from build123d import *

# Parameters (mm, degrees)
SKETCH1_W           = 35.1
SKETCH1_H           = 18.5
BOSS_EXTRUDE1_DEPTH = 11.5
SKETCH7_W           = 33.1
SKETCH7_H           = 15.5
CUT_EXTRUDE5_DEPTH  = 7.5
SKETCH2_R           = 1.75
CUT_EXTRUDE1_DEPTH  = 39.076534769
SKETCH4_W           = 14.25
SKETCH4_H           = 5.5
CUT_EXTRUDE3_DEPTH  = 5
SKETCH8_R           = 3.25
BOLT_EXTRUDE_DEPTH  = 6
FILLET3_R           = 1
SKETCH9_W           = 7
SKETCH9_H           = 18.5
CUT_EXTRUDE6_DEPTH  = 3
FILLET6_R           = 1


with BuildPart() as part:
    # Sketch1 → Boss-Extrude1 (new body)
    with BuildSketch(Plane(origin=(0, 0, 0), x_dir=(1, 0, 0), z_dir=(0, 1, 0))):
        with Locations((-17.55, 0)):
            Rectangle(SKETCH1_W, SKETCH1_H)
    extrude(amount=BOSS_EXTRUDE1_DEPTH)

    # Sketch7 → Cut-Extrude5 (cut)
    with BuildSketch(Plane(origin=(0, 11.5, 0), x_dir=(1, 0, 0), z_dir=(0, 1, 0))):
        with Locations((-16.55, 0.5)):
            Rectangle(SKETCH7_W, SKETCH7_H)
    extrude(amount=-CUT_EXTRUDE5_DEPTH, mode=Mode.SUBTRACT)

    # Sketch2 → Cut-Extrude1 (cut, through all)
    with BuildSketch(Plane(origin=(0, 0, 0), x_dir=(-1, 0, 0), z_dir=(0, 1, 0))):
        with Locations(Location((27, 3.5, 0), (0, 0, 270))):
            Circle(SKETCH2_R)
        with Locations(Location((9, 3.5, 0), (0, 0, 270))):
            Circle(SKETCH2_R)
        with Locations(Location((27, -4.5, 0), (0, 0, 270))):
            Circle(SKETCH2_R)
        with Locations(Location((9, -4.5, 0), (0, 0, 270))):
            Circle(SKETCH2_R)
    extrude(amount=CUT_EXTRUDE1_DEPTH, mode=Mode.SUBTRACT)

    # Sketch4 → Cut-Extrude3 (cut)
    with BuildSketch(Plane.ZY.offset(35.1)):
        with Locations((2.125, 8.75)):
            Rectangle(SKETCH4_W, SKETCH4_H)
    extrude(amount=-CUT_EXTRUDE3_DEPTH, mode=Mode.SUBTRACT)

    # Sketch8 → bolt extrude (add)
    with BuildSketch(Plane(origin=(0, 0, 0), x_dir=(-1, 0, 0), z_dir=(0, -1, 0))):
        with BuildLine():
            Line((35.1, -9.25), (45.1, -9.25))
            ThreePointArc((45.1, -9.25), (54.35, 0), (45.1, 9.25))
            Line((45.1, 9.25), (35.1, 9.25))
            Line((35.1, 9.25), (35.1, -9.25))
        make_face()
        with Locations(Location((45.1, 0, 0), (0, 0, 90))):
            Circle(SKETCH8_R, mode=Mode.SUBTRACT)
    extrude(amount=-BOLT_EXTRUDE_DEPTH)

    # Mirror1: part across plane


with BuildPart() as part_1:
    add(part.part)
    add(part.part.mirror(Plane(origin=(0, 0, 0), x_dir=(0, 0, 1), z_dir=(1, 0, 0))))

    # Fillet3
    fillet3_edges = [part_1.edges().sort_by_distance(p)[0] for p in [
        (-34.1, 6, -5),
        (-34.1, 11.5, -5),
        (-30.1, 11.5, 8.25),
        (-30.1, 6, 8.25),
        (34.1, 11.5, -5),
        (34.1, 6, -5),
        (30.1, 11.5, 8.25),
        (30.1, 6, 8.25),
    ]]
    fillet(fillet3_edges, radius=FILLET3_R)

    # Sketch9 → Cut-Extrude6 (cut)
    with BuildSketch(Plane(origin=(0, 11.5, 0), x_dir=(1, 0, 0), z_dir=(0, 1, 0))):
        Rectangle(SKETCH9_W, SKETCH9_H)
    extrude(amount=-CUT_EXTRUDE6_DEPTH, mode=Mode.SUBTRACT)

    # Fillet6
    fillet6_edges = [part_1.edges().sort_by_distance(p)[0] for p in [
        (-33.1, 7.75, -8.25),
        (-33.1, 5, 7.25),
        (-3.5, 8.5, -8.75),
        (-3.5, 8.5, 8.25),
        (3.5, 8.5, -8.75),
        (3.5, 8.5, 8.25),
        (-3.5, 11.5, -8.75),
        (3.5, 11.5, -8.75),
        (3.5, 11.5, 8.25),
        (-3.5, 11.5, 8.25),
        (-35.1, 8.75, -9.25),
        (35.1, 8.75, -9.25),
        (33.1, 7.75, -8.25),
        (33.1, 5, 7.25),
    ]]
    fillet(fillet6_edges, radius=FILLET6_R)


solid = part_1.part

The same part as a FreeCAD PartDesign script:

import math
import FreeCAD as App
import Part
import Sketcher


def edges_at(feature, points):
    """Names of the edges that pass closest to the given points."""
    edges = feature.Shape.Edges
    near = lambda p: min(range(len(edges)), key=lambda i: edges[i].distToShape(Part.Vertex(*p))[0])
    return sorted({f"Edge{near(p) + 1}" for p in points})


def add_polygon(sketch, points):
    """Adds a closed chain of lines whose ends are joined by coincident constraints."""
    first, n = sketch.GeometryCount, len(points)
    for a, b in zip(points, points[1:] + points[:1]):
        sketch.addGeometry(Part.LineSegment(App.Vector(*a, 0), App.Vector(*b, 0)), False)
    for i in range(n):
        sketch.addConstraint(Sketcher.Constraint("Coincident", first + i, 2, first + (i + 1) % n, 1))

doc = App.newDocument("Part")
body = doc.addObject("PartDesign::Body", "Body")

sketch1 = doc.addObject("Sketcher::SketchObject", "Sketch")
body.addObject(sketch1)
sketch1.AttachmentSupport = (doc.XZ_Plane, [""])
sketch1.MapMode = "FlatFace"
add_polygon(sketch1, [(-35, -9), (-35, 9), (0, 9), (0, -9)])
sketch1.addConstraint(Sketcher.Constraint("Vertical", 0))
sketch1.addConstraint(Sketcher.Constraint("Horizontal", 1))
sketch1.addConstraint(Sketcher.Constraint("Vertical", 2))
sketch1.addConstraint(Sketcher.Constraint("Horizontal", 3))
sketch1.addConstraint(Sketcher.Constraint("Symmetric", 1, 2, 2, 2, -1, 1))
sketch1.addConstraint(Sketcher.Constraint("DistanceX", 1, 1, 1, 2, 35.1))
sketch1.addConstraint(Sketcher.Constraint("DistanceY", 0, 1, 0, 2, 18.5))
pad1 = doc.addObject("PartDesign::Pad", "Pad")
body.addObject(pad1)
pad1.Profile = sketch1
pad1.Length = 11.5
pad1.Reversed = True

sketch2 = doc.addObject("Sketcher::SketchObject", "Sketch001")
body.addObject(sketch2)
sketch2.AttachmentSupport = (doc.XZ_Plane, [""])
sketch2.MapMode = "FlatFace"
sketch2.AttachmentOffset = App.Placement(App.Vector(0, 0, -11.5), App.Rotation())
add_polygon(sketch2, [(-33, -8), (-33, 7), (0, 7), (0, -8)])
sketch2.addConstraint(Sketcher.Constraint("Vertical", 0))
sketch2.addConstraint(Sketcher.Constraint("Horizontal", 1))
sketch2.addConstraint(Sketcher.Constraint("Vertical", 2))
sketch2.addConstraint(Sketcher.Constraint("Horizontal", 3))
sketch2.addConstraint(Sketcher.Constraint("PointOnObject", 1, 2, -2))
sketch2.addConstraint(Sketcher.Constraint("DistanceX", 1, 1, 1, 2, 33.1))
sketch2.addConstraint(Sketcher.Constraint("DistanceY", 0, 1, 0, 2, 15.5))
sketch2.addConstraint(Sketcher.Constraint("DistanceY", -1, 1, 0, 2, 7.25))
pocket1 = doc.addObject("PartDesign::Pocket", "Pocket")
body.addObject(pocket1)
pocket1.Profile = sketch2
pocket1.Length = 7.5
pocket1.Reversed = True

sketch3 = doc.addObject("Sketcher::SketchObject", "Sketch002")
body.addObject(sketch3)
sketch3.AttachmentSupport = (doc.XZ_Plane, [""])
sketch3.MapMode = "FlatFace"
sketch3.addGeometry(Part.Circle(App.Vector(-27, 3.5, 0), App.Vector(0, 0, 1), 1.8), False)
sketch3.addGeometry(Part.Circle(App.Vector(-9, 3.5, 0), App.Vector(0, 0, 1), 1.8), False)
sketch3.addGeometry(Part.Circle(App.Vector(-27, -4.5, 0), App.Vector(0, 0, 1), 1.8), False)
sketch3.addGeometry(Part.Circle(App.Vector(-9, -4.5, 0), App.Vector(0, 0, 1), 1.8), False)
sketch3.addConstraint(Sketcher.Constraint("Equal", 0, 1))
sketch3.addConstraint(Sketcher.Constraint("Equal", 1, 2))
sketch3.addConstraint(Sketcher.Constraint("Equal", 2, 3))
sketch3.addConstraint(Sketcher.Constraint("Horizontal", 0, 3, 1, 3))
sketch3.addConstraint(Sketcher.Constraint("Horizontal", 2, 3, 3, 3))
sketch3.addConstraint(Sketcher.Constraint("Vertical", 0, 3, 2, 3))
sketch3.addConstraint(Sketcher.Constraint("Vertical", 1, 3, 3, 3))
sketch3.addConstraint(Sketcher.Constraint("Diameter", 0, 3.5))
sketch3.addConstraint(Sketcher.Constraint("DistanceX", 0, 3, -1, 1, 27.0))
sketch3.addConstraint(Sketcher.Constraint("DistanceX", 1, 3, -1, 1, 9.0))
sketch3.addConstraint(Sketcher.Constraint("DistanceY", 2, 3, 0, 3, 8.0))
sketch3.addConstraint(Sketcher.Constraint("DistanceY", -1, 1, 0, 3, 3.5))
pocket2 = doc.addObject("PartDesign::Pocket", "Pocket001")
body.addObject(pocket2)
pocket2.Profile = sketch3
pocket2.Type = "ThroughAll"

sketch4 = doc.addObject("Sketcher::SketchObject", "Sketch003")
body.addObject(sketch4)
sketch4.AttachmentSupport = (doc.YZ_Plane, [""])
sketch4.MapMode = "FlatFace"
sketch4.AttachmentOffset = App.Placement(App.Vector(0, 0, -35.1), App.Rotation())
add_polygon(sketch4, [(12, -5), (6, -5), (6, 9), (12, 9)])
sketch4.addConstraint(Sketcher.Constraint("Horizontal", 0))
sketch4.addConstraint(Sketcher.Constraint("Vertical", 1))
sketch4.addConstraint(Sketcher.Constraint("Horizontal", 2))
sketch4.addConstraint(Sketcher.Constraint("Vertical", 3))
sketch4.addConstraint(Sketcher.Constraint("DistanceX", 0, 2, 0, 1, 5.5))
sketch4.addConstraint(Sketcher.Constraint("DistanceX", -1, 1, 0, 2, 6.0))
sketch4.addConstraint(Sketcher.Constraint("DistanceY", 0, 2, -1, 1, 5.0))
sketch4.addConstraint(Sketcher.Constraint("DistanceY", 1, 1, 1, 2, 14.25))
pocket3 = doc.addObject("PartDesign::Pocket", "Pocket002")
body.addObject(pocket3)
pocket3.Profile = sketch4
pocket3.Length = 5
pocket3.Reversed = True

sketch5 = doc.addObject("Sketcher::SketchObject", "Sketch004")
body.addObject(sketch5)
sketch5.AttachmentSupport = (doc.XZ_Plane, [""])
sketch5.MapMode = "FlatFace"
sketch5.addGeometry(Part.LineSegment(App.Vector(-35.1, 9.2, 0), App.Vector(-45.1, 9.2, 0)), False)
sketch5.addGeometry(Part.ArcOfCircle(Part.Circle(App.Vector(-45.1, 0, 0), App.Vector(0, 0, 1), 9.2), math.radians(90), math.radians(270)), False)
sketch5.addGeometry(Part.LineSegment(App.Vector(-45.1, -9.2, 0), App.Vector(-35.1, -9.2, 0)), False)
sketch5.addGeometry(Part.LineSegment(App.Vector(-35.1, -9.2, 0), App.Vector(-35.1, 9.2, 0)), False)
sketch5.addGeometry(Part.Circle(App.Vector(-45.1, 0, 0), App.Vector(0, 0, 1), 3.2), False)
sketch5.addConstraint(Sketcher.Constraint("Tangent", 0, 2, 1, 1))
sketch5.addConstraint(Sketcher.Constraint("Tangent", 1, 2, 2, 1))
sketch5.addConstraint(Sketcher.Constraint("Coincident", 2, 2, 3, 1))
sketch5.addConstraint(Sketcher.Constraint("Coincident", 3, 2, 0, 1))
sketch5.addConstraint(Sketcher.Constraint("Horizontal", 0))
sketch5.addConstraint(Sketcher.Constraint("Horizontal", 2))
sketch5.addConstraint(Sketcher.Constraint("Vertical", 3))
sketch5.addConstraint(Sketcher.Constraint("Coincident", 4, 3, 1, 3))
sketch5.addConstraint(Sketcher.Constraint("PointOnObject", 1, 3, -1))
sketch5.addConstraint(Sketcher.Constraint("Diameter", 4, 6.5))
sketch5.addConstraint(Sketcher.Constraint("DistanceX", 0, 2, 0, 1, 10.0))
sketch5.addConstraint(Sketcher.Constraint("Radius", 1, 9.25))
sketch5.addConstraint(Sketcher.Constraint("DistanceX", 1, 3, -1, 1, 45.1))
pad2 = doc.addObject("PartDesign::Pad", "Pad001")
body.addObject(pad2)
pad2.Profile = sketch5
pad2.Length = 6
pad2.Reversed = True
body2 = doc.addObject("PartDesign::Body", "Body001")
doc.recompute()

body2.BaseFeature = body
doc.recompute()

mirroring = doc.addObject("Part::Mirroring", "Mirroring")
mirroring.Source = body
mirroring.Base = App.Vector(0, 0, 0)
mirroring.Normal = App.Vector(1, 0, 0)
body3 = doc.addObject("PartDesign::Body", "Body002")
body3.BaseFeature = mirroring
boolean = doc.addObject("PartDesign::Boolean", "Boolean")
body2.addObject(boolean)
boolean.Type = "Fuse"
boolean.addObjects([body3])
doc.recompute()

fillet = doc.addObject("PartDesign::Fillet", "Fillet")
body2.addObject(fillet)
fillet.Base = (boolean, edges_at(boolean, [
    (-34.1, 6, -5),
    (-34.1, 11.5, -5),
    (-30.1, 11.5, 8.25),
    (-30.1, 6, 8.25),
    (34.1, 11.5, -5),
    (34.1, 6, -5),
    (30.1, 11.5, 8.25),
    (30.1, 6, 8.25),
]))
fillet.Radius = 1

sketch6 = doc.addObject("Sketcher::SketchObject", "Sketch005")
body2.addObject(sketch6)
sketch6.AttachmentSupport = (doc.getObject("XZ_Plane001"), [""])
sketch6.MapMode = "FlatFace"
sketch6.AttachmentOffset = App.Placement(App.Vector(0, 0, -11.5), App.Rotation())
add_polygon(sketch6, [(-4, -9), (-4, 9), (4, 9), (4, -9)])
sketch6.addConstraint(Sketcher.Constraint("Vertical", 0))
sketch6.addConstraint(Sketcher.Constraint("Horizontal", 1))
sketch6.addConstraint(Sketcher.Constraint("Vertical", 2))
sketch6.addConstraint(Sketcher.Constraint("Horizontal", 3))
sketch6.addConstraint(Sketcher.Constraint("Symmetric", 0, 2, 2, 2, -1, 1))
sketch6.addConstraint(Sketcher.Constraint("DistanceX", 1, 1, 1, 2, 7.0))
sketch6.addConstraint(Sketcher.Constraint("DistanceY", 0, 1, 0, 2, 18.5))
pocket4 = doc.addObject("PartDesign::Pocket", "Pocket003")
body2.addObject(pocket4)
pocket4.Profile = sketch6
pocket4.Length = 3
pocket4.Reversed = True
doc.recompute()

fillet2 = doc.addObject("PartDesign::Fillet", "Fillet001")
body2.addObject(fillet2)
fillet2.Base = (pocket4, edges_at(pocket4, [
    (-33.1, 7.75, -8.25),
    (-33.1, 5, 7.25),
    (-3.5, 8.5, -8.75),
    (-3.5, 8.5, 8.25),
    (3.5, 8.5, -8.75),
    (3.5, 8.5, 8.25),
    (-3.5, 11.5, -8.75),
    (3.5, 11.5, -8.75),
    (3.5, 11.5, 8.25),
    (-3.5, 11.5, 8.25),
    (-35.1, 8.75, -9.25),
    (35.1, 8.75, -9.25),
    (33.1, 7.75, -8.25),
    (33.1, 5, 7.25),
]))
fillet2.Radius = 1
mirroring.Visibility = False

doc.recompute()
